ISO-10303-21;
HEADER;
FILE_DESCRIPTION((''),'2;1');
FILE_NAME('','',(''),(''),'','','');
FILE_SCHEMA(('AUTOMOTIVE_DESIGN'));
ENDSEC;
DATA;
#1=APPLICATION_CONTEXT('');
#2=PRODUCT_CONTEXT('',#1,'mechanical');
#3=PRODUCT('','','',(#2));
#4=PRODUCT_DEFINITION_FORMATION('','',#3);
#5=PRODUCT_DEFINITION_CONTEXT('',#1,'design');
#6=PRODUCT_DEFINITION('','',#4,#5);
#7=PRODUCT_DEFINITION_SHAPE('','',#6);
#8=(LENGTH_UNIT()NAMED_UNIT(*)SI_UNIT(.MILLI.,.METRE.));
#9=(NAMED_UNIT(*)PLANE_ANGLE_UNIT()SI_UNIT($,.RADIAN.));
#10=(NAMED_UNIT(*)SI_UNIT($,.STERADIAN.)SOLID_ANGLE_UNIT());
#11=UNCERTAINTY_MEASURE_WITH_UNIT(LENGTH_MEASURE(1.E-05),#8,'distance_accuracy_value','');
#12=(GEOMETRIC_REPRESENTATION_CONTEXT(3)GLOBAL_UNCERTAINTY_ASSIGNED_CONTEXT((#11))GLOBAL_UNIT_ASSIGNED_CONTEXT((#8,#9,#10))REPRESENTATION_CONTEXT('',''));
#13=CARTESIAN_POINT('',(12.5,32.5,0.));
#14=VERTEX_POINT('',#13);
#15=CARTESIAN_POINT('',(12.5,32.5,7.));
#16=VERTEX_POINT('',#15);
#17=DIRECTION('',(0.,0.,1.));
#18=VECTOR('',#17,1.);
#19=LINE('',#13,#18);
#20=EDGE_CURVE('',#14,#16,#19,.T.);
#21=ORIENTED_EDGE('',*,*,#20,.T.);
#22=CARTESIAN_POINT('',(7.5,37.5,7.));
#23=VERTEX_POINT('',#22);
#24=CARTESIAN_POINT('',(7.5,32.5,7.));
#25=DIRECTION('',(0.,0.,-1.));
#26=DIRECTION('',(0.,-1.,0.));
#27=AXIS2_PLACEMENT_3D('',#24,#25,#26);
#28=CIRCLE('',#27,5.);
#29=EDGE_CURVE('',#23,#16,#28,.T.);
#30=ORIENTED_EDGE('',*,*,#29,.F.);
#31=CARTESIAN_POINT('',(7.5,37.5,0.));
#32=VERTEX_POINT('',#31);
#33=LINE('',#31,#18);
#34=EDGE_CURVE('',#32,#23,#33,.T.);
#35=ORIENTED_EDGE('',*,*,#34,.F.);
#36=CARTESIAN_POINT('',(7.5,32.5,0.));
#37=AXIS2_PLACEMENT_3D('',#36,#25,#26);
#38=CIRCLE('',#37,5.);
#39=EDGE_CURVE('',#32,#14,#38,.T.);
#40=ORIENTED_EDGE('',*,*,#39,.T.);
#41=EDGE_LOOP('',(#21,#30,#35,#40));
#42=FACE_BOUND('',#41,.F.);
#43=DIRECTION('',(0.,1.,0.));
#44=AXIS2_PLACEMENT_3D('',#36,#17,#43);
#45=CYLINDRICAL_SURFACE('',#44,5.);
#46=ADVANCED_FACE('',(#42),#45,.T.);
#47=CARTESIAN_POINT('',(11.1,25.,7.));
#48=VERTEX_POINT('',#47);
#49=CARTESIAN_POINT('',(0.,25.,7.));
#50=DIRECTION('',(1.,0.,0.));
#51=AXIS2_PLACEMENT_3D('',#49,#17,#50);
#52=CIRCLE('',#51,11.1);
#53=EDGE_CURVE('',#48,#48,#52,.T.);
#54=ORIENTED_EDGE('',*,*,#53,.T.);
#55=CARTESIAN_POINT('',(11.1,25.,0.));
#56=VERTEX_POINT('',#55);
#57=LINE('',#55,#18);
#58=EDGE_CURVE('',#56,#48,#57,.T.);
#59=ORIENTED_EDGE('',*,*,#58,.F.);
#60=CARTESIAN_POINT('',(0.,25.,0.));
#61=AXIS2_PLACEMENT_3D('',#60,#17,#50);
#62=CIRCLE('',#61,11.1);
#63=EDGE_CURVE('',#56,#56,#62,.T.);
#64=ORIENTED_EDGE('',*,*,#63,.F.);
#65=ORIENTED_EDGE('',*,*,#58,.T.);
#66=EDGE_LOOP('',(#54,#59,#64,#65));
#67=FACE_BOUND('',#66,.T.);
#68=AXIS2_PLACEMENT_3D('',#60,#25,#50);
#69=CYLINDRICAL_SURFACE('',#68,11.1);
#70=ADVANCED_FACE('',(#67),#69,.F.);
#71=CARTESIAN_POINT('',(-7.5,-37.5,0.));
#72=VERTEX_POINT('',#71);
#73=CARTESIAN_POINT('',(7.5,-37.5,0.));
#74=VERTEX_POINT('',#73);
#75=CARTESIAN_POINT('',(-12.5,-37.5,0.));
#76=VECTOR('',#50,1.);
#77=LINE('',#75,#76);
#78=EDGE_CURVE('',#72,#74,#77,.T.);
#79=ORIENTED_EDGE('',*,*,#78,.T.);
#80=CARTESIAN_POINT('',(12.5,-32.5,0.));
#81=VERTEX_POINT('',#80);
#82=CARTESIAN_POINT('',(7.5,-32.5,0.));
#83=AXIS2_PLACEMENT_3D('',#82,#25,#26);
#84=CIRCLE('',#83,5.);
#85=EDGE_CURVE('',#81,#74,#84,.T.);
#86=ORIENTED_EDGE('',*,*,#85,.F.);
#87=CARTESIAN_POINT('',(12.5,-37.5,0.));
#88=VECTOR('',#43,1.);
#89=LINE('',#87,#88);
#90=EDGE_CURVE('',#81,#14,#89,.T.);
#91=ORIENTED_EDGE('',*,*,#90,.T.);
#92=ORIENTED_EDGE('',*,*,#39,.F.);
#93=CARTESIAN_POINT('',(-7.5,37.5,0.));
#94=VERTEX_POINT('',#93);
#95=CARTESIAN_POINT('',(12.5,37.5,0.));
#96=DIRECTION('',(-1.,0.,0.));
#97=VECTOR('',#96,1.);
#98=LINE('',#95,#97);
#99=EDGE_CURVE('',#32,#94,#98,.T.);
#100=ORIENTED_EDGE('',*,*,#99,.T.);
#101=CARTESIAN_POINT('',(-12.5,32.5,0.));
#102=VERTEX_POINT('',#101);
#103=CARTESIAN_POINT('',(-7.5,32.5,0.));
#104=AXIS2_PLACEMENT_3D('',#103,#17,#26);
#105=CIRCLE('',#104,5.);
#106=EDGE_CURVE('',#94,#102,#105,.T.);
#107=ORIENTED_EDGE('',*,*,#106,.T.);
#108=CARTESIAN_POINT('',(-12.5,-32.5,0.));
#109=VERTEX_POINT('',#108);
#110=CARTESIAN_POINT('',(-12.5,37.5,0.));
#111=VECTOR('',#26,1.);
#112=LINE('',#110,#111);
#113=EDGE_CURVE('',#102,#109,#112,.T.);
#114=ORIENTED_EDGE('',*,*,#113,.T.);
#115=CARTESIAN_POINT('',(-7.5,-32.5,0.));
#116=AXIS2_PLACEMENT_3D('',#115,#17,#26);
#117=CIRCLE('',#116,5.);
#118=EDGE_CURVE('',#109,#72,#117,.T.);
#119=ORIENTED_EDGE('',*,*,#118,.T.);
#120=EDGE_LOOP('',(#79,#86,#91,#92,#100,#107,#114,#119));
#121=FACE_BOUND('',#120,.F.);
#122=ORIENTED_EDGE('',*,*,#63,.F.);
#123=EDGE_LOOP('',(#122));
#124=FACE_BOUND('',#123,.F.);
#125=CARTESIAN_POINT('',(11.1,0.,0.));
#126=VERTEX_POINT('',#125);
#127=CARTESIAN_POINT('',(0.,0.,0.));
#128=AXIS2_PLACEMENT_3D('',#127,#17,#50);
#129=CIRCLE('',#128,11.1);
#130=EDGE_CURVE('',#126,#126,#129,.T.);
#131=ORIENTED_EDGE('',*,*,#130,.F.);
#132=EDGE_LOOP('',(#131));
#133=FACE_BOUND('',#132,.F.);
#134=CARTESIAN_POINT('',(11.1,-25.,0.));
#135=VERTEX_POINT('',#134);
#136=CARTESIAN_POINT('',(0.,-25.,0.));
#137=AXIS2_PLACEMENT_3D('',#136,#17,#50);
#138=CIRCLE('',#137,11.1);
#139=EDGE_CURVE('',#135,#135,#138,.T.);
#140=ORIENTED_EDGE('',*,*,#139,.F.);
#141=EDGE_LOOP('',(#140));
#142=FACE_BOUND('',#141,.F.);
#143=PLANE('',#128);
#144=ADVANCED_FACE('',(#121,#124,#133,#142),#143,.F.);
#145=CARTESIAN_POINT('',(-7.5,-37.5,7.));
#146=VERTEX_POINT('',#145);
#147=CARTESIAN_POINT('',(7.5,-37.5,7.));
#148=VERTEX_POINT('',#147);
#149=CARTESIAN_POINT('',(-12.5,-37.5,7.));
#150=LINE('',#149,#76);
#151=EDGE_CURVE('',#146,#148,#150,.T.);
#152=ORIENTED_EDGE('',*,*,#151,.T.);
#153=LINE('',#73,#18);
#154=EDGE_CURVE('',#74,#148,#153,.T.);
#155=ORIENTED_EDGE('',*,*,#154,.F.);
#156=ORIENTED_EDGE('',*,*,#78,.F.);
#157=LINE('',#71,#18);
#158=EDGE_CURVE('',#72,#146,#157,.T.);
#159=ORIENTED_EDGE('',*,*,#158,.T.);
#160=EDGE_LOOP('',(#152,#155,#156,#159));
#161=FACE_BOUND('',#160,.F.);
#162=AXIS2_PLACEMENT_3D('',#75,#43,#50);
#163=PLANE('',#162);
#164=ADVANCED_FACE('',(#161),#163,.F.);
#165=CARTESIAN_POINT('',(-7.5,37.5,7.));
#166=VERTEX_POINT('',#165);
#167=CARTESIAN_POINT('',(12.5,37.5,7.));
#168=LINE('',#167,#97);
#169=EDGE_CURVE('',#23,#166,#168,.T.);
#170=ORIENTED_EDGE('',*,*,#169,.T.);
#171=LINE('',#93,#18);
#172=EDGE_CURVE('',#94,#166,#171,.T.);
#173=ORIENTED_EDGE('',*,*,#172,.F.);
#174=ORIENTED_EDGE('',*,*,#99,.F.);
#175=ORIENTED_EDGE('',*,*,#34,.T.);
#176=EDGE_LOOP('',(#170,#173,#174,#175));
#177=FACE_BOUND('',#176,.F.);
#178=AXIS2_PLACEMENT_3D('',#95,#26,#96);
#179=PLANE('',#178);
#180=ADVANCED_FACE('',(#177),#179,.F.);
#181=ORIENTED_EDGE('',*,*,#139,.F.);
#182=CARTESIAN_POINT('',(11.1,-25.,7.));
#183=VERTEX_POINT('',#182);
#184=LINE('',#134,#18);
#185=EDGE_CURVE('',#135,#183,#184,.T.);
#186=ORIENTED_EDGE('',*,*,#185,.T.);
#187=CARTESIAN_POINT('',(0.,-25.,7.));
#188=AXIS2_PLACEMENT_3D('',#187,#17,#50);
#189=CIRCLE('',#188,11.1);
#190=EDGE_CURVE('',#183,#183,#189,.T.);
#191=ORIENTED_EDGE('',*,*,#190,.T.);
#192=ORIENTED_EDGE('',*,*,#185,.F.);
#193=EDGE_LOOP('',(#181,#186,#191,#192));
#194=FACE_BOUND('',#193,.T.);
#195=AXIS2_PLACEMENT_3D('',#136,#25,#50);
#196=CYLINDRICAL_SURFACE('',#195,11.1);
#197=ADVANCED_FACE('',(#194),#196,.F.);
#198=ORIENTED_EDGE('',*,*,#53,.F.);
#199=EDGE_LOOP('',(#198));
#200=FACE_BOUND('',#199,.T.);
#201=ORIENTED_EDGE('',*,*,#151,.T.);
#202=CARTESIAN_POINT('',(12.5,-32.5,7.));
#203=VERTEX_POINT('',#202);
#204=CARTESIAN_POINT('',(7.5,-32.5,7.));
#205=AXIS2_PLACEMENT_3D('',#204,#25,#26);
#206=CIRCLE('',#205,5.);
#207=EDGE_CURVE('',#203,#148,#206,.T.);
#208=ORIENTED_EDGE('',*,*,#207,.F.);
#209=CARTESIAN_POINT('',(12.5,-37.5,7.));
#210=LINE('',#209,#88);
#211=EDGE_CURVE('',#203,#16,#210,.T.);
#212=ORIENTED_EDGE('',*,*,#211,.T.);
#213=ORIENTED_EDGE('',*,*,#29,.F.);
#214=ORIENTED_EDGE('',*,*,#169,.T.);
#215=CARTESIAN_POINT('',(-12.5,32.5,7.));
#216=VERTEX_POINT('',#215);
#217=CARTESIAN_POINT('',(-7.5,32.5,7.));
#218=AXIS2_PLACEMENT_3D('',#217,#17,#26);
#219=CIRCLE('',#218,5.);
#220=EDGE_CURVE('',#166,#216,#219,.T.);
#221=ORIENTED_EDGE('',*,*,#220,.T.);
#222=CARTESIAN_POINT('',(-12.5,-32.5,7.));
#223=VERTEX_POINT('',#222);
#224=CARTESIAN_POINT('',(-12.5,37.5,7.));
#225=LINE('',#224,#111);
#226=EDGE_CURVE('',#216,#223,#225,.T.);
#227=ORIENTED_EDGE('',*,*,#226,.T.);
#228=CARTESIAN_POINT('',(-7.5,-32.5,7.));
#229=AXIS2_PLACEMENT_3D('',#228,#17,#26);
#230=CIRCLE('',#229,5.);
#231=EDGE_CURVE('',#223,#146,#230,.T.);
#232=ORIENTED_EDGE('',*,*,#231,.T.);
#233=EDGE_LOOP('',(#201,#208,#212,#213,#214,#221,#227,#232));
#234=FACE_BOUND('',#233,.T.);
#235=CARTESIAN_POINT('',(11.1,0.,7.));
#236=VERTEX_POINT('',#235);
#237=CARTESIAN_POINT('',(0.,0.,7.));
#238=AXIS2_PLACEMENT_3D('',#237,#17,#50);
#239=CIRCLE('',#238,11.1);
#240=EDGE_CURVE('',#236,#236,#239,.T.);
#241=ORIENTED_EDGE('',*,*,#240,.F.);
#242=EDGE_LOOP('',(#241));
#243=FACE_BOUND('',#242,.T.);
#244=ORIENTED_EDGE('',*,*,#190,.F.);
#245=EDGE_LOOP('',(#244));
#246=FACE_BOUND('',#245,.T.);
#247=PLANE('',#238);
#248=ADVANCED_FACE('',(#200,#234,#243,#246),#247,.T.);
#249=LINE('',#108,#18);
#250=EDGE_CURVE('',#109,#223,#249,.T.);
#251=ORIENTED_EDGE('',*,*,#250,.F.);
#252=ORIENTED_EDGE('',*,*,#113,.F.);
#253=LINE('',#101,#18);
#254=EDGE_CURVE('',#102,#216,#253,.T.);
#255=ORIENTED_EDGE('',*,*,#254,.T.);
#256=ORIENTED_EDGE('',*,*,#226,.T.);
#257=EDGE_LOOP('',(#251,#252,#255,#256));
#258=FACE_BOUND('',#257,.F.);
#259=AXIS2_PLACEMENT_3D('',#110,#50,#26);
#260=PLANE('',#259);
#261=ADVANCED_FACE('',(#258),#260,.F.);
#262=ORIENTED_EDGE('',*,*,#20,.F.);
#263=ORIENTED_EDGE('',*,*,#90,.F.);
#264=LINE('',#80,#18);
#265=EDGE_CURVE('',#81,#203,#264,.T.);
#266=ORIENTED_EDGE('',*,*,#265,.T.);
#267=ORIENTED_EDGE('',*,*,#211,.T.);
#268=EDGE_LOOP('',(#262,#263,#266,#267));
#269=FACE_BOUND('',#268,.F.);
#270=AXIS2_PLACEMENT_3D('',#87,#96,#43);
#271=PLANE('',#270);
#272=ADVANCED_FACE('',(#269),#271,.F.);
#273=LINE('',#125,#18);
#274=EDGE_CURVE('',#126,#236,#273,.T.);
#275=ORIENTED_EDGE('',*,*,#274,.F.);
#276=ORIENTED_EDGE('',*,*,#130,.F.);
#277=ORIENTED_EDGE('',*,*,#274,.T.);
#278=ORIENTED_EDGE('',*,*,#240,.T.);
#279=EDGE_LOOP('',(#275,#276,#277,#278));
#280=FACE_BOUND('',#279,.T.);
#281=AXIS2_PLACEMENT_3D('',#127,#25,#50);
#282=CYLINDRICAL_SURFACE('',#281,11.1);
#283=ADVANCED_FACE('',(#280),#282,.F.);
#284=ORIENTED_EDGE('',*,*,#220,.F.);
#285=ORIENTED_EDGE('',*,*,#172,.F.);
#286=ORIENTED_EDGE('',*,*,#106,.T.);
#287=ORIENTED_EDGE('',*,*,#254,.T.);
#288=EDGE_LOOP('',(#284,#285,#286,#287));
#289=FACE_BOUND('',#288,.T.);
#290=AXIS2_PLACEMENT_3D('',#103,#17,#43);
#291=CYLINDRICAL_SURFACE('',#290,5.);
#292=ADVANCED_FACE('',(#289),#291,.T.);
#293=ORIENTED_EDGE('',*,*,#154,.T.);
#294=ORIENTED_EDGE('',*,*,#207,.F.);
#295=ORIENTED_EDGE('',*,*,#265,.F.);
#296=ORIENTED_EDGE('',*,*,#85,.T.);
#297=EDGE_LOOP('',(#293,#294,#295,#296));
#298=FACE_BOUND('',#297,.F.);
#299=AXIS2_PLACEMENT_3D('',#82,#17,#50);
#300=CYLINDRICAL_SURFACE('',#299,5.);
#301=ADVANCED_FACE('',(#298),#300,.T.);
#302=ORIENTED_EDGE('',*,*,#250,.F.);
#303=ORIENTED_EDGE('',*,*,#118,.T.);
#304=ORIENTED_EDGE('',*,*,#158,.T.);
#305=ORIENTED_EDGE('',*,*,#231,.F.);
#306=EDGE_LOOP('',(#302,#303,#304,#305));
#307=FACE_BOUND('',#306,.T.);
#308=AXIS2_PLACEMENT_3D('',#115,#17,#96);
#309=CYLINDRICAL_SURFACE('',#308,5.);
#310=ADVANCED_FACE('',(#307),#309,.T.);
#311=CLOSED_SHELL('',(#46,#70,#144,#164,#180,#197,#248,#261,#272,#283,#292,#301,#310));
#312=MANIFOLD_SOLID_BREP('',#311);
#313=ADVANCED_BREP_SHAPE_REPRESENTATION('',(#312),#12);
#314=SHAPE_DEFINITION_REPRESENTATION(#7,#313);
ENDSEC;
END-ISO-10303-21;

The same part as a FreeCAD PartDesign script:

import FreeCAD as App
import Part
import Sketcher

V = App.Vector
Q = App.Units.Quantity


def edges_at(feature, points):
    """Names of the edges that pass closest to the given points."""
    edges = feature.Shape.Edges
    near = lambda p: min(range(len(edges)), key=lambda i: edges[i].distToShape(Part.Vertex(*p))[0])
    return sorted({f"Edge{near(p) + 1}" for p in points})

doc = App.newDocument("Part")
params = doc.addObject("Spreadsheet::Sheet", "Params")
for row, (alias, value) in enumerate([
    ("sketch1_diameter", "22.2 mm"),
    ("sketch1_width", "25 mm"),
    ("sketch1_height", "75 mm"),
    ("pad1_length", "7 mm"),
    ("fillet_radius", "5 mm"),
], start=1):
    params.set(f"A{row}", alias)
    params.set(f"B{row}", "=" + value)
    params.setAlias(f"B{row}", alias)

body = doc.addObject("PartDesign::Body", "Body")

# Sketch on XY plane
sketch1 = body.newObject("Sketcher::SketchObject", "Sketch")
sketch1.AttachmentSupport = (doc.getObject("XY_Plane"), [""])
sketch1.MapMode = "FlatFace"
sketch1.addGeometry([
    Part.LineSegment(V(12, 38, 0), V(-12, 38, 0)),  # 0
    Part.LineSegment(V(-12, 38, 0), V(-12, -38, 0)),  # 1
    Part.LineSegment(V(-12, -38, 0), V(12, -38, 0)),  # 2
    Part.LineSegment(V(12, -38, 0), V(12, 38, 0)),  # 3
    Part.Circle(V(0, -25, 0), V(0, 0, 1), 11),  # 4
    Part.Circle(V(0, 0, 0), V(0, 0, 1), 11),  # 5
    Part.Circle(V(0, 25, 0), V(0, 0, 1), 11),  # 6
], False)
sketch1.addConstraint([
    Sketcher.Constraint("Coincident", 0, 2, 1, 1),
    Sketcher.Constraint("Coincident", 1, 2, 2, 1),
    Sketcher.Constraint("Coincident", 2, 2, 3, 1),
    Sketcher.Constraint("Coincident", 3, 2, 0, 1),
    Sketcher.Constraint("Horizontal", 0),
    Sketcher.Constraint("Vertical", 1),
    Sketcher.Constraint("Horizontal", 2),
    Sketcher.Constraint("Vertical", 3),
    Sketcher.Constraint("Coincident", 5, 3, -1, 1),
    Sketcher.Constraint("Equal", 4, 5),
    Sketcher.Constraint("Equal", 5, 6),
    Sketcher.Constraint("Symmetric", 4, 3, 6, 3, -1, 1),
    Sketcher.Constraint("Symmetric", 0, 2, 2, 2, -1, 1),
    Sketcher.Constraint("PointOnObject", 4, 3, -2),
    Sketcher.Constraint("Diameter", 4, Q("22.2 mm")),
    Sketcher.Constraint("DistanceX", 0, 2, 0, 1, Q("25 mm")),
    Sketcher.Constraint("DistanceY", 1, 2, 1, 1, Q("75 mm")),
    Sketcher.Constraint("DistanceY", 4, 3, -1, 1, Q("25 mm")),
])
sketch1.setExpression("Constraints[14]", "Params.sketch1_diameter")
sketch1.setExpression("Constraints[15]", "Params.sketch1_width")
sketch1.setExpression("Constraints[16]", "Params.sketch1_height")
pad1 = body.newObject("PartDesign::Pad", "Pad")
pad1.Profile = sketch1
pad1.setExpression("Length", "Params.pad1_length")
doc.recompute()

fillet = body.newObject("PartDesign::Fillet", "Fillet")
fillet.Base = (pad1, edges_at(pad1, [
    (12.5, -37.5, 3.5),
    (-12.5, -37.5, 3.5),
    (-12.5, 37.5, 3.5),
    (12.5, 37.5, 3.5),
]))
fillet.setExpression("Radius", "Params.fillet_radius")

doc.recompute()
